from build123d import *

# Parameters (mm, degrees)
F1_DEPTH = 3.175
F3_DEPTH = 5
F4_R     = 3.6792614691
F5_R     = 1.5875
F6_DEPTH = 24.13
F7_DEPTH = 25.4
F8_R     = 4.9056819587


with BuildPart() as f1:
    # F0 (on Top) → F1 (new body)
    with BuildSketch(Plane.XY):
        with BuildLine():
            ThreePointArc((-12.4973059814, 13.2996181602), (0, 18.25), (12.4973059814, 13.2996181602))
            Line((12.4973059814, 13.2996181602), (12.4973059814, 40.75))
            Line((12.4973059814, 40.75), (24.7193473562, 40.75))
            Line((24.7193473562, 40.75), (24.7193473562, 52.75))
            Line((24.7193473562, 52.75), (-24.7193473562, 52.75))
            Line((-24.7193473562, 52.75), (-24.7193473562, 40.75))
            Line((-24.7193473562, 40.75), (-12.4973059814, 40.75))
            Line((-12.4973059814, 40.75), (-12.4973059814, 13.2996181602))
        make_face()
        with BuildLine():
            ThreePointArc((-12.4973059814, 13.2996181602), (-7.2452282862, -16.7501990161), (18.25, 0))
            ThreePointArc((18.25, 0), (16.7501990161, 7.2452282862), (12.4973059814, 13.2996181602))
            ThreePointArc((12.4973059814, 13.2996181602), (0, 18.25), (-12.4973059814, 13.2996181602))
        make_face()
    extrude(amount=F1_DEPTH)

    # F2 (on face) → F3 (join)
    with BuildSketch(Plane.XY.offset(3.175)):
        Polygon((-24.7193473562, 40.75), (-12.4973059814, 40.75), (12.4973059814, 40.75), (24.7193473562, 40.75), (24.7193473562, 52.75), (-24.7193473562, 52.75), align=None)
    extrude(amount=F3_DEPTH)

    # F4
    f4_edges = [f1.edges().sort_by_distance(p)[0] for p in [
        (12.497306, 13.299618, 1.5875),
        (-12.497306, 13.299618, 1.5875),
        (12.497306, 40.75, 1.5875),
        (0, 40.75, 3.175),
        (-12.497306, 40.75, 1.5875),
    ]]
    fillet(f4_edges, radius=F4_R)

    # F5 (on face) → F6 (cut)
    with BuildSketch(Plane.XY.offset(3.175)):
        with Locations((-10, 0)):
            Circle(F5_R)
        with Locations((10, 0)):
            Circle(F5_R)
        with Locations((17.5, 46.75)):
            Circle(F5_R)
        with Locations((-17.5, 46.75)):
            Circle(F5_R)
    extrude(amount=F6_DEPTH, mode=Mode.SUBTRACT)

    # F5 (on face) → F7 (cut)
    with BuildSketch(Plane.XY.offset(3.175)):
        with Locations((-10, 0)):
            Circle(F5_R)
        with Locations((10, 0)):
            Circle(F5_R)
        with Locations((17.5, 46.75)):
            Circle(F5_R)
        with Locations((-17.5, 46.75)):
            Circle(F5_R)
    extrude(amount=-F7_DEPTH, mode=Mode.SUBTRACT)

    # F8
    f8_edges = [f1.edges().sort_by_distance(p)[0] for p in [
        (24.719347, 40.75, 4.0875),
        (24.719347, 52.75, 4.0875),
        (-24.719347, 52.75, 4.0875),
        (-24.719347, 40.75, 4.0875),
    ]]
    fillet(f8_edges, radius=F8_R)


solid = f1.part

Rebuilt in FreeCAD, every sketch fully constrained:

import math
import FreeCAD as App
import Part
import Sketcher

V = App.Vector


def edges_at(feature, points):
    """Names of the edges that pass closest to the given points."""
    edges = feature.Shape.Edges
    near = lambda p: min(range(len(edges)), key=lambda i: edges[i].distToShape(Part.Vertex(*p))[0])
    return sorted({f"Edge{near(p) + 1}" for p in points})

doc = App.newDocument("Part")
body = doc.addObject("PartDesign::Body", "Body")

# Sketch on XY plane
sketch1 = body.newObject("Sketcher::SketchObject", "Sketch")
sketch1.AttachmentSupport = (doc.getObject("XY_Plane"), [""])
sketch1.MapMode = "FlatFace"
sketch1.addGeometry(Part.LineSegment(V(12.497306, 13.299618, 0), V(12.497306, 40.75, 0)), False)
sketch1.addGeometry(Part.LineSegment(V(12.497306, 40.75, 0), V(24.719347, 40.75, 0)), False)
sketch1.addGeometry(Part.LineSegment(V(24.719347, 40.75, 0), V(24.719347, 52.75, 0)), False)
sketch1.addGeometry(Part.LineSegment(V(24.719347, 52.75, 0), V(-24.719347, 52.75, 0)), False)
sketch1.addGeometry(Part.LineSegment(V(-24.719347, 52.75, 0), V(-24.719347, 40.75, 0)), False)
sketch1.addGeometry(Part.LineSegment(V(-24.719347, 40.75, 0), V(-12.497306, 40.75, 0)), False)
sketch1.addGeometry(Part.LineSegment(V(-12.497306, 40.75, 0), V(-12.497306, 13.299618, 0)), False)
sketch1.addGeometry(Part.ArcOfCircle(Part.Circle(V(0, 0, 0), V(0, 0, 1), 18.25), math.radians(133.218614), math.radians(360)), False)
sketch1.addGeometry(Part.ArcOfCircle(Part.Circle(V(0, 0, 0), V(0, 0, 1), 18.25), math.radians(0), math.radians(46.781386)), False)
sketch1.addConstraint(Sketcher.Constraint("Coincident", 0, 2, 1, 1))
sketch1.addConstraint(Sketcher.Constraint("Coincident", 1, 2, 2, 1))
sketch1.addConstraint(Sketcher.Constraint("Coincident", 2, 2, 3, 1))
sketch1.addConstraint(Sketcher.Constraint("Coincident", 3, 2, 4, 1))
sketch1.addConstraint(Sketcher.Constraint("Coincident", 4, 2, 5, 1))
sketch1.addConstraint(Sketcher.Constraint("Coincident", 5, 2, 6, 1))
sketch1.addConstraint(Sketcher.Constraint("Coincident", 6, 2, 7, 1))
sketch1.addConstraint(Sketcher.Constraint("Tangent", 7, 2, 8, 1))
sketch1.addConstraint(Sketcher.Constraint("Coincident", 8, 2, 0, 1))
sketch1.addConstraint(Sketcher.Constraint("Vertical", 0))
sketch1.addConstraint(Sketcher.Constraint("Horizontal", 1))
sketch1.addConstraint(Sketcher.Constraint("Vertical", 2))
sketch1.addConstraint(Sketcher.Constraint("Horizontal", 3))
sketch1.addConstraint(Sketcher.Constraint("Vertical", 4))
sketch1.addConstraint(Sketcher.Constraint("Horizontal", 5))
sketch1.addConstraint(Sketcher.Constraint("Vertical", 6))
sketch1.addConstraint(Sketcher.Constraint("Coincident", 7, 3, -1, 1))
sketch1.addConstraint(Sketcher.Constraint("Equal", 7, 8))
sketch1.addConstraint(Sketcher.Constraint("Symmetric", 1, 2, 4, 2, -2))
sketch1.addConstraint(Sketcher.Constraint("PointOnObject", 7, 2, -1))
sketch1.addConstraint(Sketcher.Constraint("Horizontal", 6, 2, 8, 2))
sketch1.addConstraint(Sketcher.Constraint("DistanceY", 2, 1, 2, 2, 12.0))
sketch1.addConstraint(Sketcher.Constraint("Radius", 7, 18.25))
sketch1.addConstraint(Sketcher.Constraint("DistanceY", -1, 1, 0, 2, 40.75))
sketch1.addConstraint(Sketcher.Constraint("DistanceX", 1, 1, 1, 2, 12.222041))
sketch1.addConstraint(Sketcher.Constraint("DistanceY", 0, 1, 0, 2, 27.450382))
pad1 = body.newObject("PartDesign::Pad", "Pad")
pad1.Profile = sketch1
pad1.Length = 3.175

# Sketch on XY plane
sketch2 = body.newObject("Sketcher::SketchObject", "Sketch001")
sketch2.AttachmentSupport = (doc.getObject("XY_Plane"), [""])
sketch2.MapMode = "FlatFace"
sketch2.AttachmentOffset = App.Placement(V(0, 0, 3.175), App.Rotation())
sketch2.addGeometry(Part.LineSegment(V(-24.719347, 40.75, 0), V(24.719347, 40.75, 0)), False)
sketch2.addGeometry(Part.LineSegment(V(24.719347, 40.75, 0), V(24.719347, 52.75, 0)), False)
sketch2.addGeometry(Part.LineSegment(V(24.719347, 52.75, 0), V(-24.719347, 52.75, 0)), False)
sketch2.addGeometry(Part.LineSegment(V(-24.719347, 52.75, 0), V(-24.719347, 40.75, 0)), False)
sketch2.addConstraint(Sketcher.Constraint("Coincident", 0, 2, 1, 1))
sketch2.addConstraint(Sketcher.Constraint("Coincident", 1, 2, 2, 1))
sketch2.addConstraint(Sketcher.Constraint("Coincident", 2, 2, 3, 1))
sketch2.addConstraint(Sketcher.Constraint("Coincident", 3, 2, 0, 1))
sketch2.addConstraint(Sketcher.Constraint("Horizontal", 0))
sketch2.addConstraint(Sketcher.Constraint("Vertical", 1))
sketch2.addConstraint(Sketcher.Constraint("Horizontal", 2))
sketch2.addConstraint(Sketcher.Constraint("Vertical", 3))
sketch2.addConstraint(Sketcher.Constraint("DistanceY", 1, 1, 1, 2, 12.0))
sketch2.addConstraint(Sketcher.Constraint("DistanceY", -1, 1, 0, 2, 40.75))
sketch2.addConstraint(Sketcher.Constraint("DistanceX", 0, 1, 0, 2, 49.438695))
sketch2.addConstraint(Sketcher.Constraint("DistanceX", -1, 1, 0, 2, 24.719347))
pad2 = body.newObject("PartDesign::Pad", "Pad001")
pad2.Profile = sketch2
pad2.Length = 5
doc.recompute()

fillet = body.newObject("PartDesign::Fillet", "Fillet")
fillet.Base = (pad2, edges_at(pad2, [
    (12.497, 13.3, 1.587),
    (-12.497, 13.3, 1.587),
    (12.497, 40.75, 1.587),
    (0, 40.75, 3.175),
    (-12.497, 40.75, 1.587),
]))
fillet.Radius = 3.679261

# Sketch on XY plane
sketch3 = body.newObject("Sketcher::SketchObject", "Sketch002")
sketch3.AttachmentSupport = (doc.getObject("XY_Plane"), [""])
sketch3.MapMode = "FlatFace"
sketch3.AttachmentOffset = App.Placement(V(0, 0, 3.175), App.Rotation())
sketch3.addGeometry(Part.Circle(V(-10, 0, 0), V(0, 0, 1), 1.5875), False)
sketch3.addGeometry(Part.Circle(V(10, 0, 0), V(0, 0, 1), 1.5875), False)
sketch3.addGeometry(Part.Circle(V(17.5, 46.75, 0), V(0, 0, 1), 1.5875), False)
sketch3.addGeometry(Part.Circle(V(-17.5, 46.75, 0), V(0, 0, 1), 1.5875), False)
sketch3.addConstraint(Sketcher.Constraint("Equal", 0, 1))
sketch3.addConstraint(Sketcher.Constraint("Equal", 1, 2))
sketch3.addConstraint(Sketcher.Constraint("Equal", 2, 3))
sketch3.addConstraint(Sketcher.Constraint("Symmetric", 0, 3, 1, 3, -1, 1))
sketch3.addConstraint(Sketcher.Constraint("Symmetric", 2, 3, 3, 3, -2))
sketch3.addConstraint(Sketcher.Constraint("PointOnObject", 0, 3, -1))
sketch3.addConstraint(Sketcher.Constraint("Diameter", 0, 3.175))
sketch3.addConstraint(Sketcher.Constraint("DistanceX", 0, 3, -1, 1, 10.0))
sketch3.addConstraint(Sketcher.Constraint("DistanceX", 3, 3, 2, 3, 35.0))
sketch3.addConstraint(Sketcher.Constraint("DistanceY", -1, 1, 2, 3, 46.75))
pocket1 = body.newObject("PartDesign::Pocket", "Pocket")
pocket1.Profile = sketch3
pocket1.Length = 24.13
pocket1.Reversed = True

# Sketch on XY plane
sketch4 = body.newObject("Sketcher::SketchObject", "Sketch003")
sketch4.AttachmentSupport = (doc.getObject("XY_Plane"), [""])
sketch4.MapMode = "FlatFace"
sketch4.AttachmentOffset = App.Placement(V(0, 0, 3.175), App.Rotation())
sketch4.addGeometry(Part.Circle(V(-10, 0, 0), V(0, 0, 1), 1.5875), False)
sketch4.addGeometry(Part.Circle(V(10, 0, 0), V(0, 0, 1), 1.5875), False)
sketch4.addGeometry(Part.Circle(V(17.5, 46.75, 0), V(0, 0, 1), 1.5875), False)
sketch4.addGeometry(Part.Circle(V(-17.5, 46.75, 0), V(0, 0, 1), 1.5875), False)
sketch4.addConstraint(Sketcher.Constraint("Equal", 0, 1))
sketch4.addConstraint(Sketcher.Constraint("Equal", 1, 2))
sketch4.addConstraint(Sketcher.Constraint("Equal", 2, 3))
sketch4.addConstraint(Sketcher.Constraint("Symmetric", 0, 3, 1, 3, -1, 1))
sketch4.addConstraint(Sketcher.Constraint("Symmetric", 2, 3, 3, 3, -2))
sketch4.addConstraint(Sketcher.Constraint("PointOnObject", 0, 3, -1))
sketch4.addConstraint(Sketcher.Constraint("Diameter", 0, 3.175))
sketch4.addConstraint(Sketcher.Constraint("DistanceX", 0, 3, -1, 1, 10.0))
sketch4.addConstraint(Sketcher.Constraint("DistanceX", 3, 3, 2, 3, 35.0))
sketch4.addConstraint(Sketcher.Constraint("DistanceY", -1, 1, 2, 3, 46.75))
pocket2 = body.newObject("PartDesign::Pocket", "Pocket001")
pocket2.Profile = sketch4
pocket2.Length = 25.4
doc.recompute()

fillet2 = body.newObject("PartDesign::Fillet", "Fillet001")
fillet2.Base = (pocket2, edges_at(pocket2, [
    (24.719, 40.75, 4.088),
    (24.719, 52.75, 4.088),
    (-24.719, 52.75, 4.088),
    (-24.719, 40.75, 4.088),
]))
fillet2.Radius = 4.905682

doc.recompute()
